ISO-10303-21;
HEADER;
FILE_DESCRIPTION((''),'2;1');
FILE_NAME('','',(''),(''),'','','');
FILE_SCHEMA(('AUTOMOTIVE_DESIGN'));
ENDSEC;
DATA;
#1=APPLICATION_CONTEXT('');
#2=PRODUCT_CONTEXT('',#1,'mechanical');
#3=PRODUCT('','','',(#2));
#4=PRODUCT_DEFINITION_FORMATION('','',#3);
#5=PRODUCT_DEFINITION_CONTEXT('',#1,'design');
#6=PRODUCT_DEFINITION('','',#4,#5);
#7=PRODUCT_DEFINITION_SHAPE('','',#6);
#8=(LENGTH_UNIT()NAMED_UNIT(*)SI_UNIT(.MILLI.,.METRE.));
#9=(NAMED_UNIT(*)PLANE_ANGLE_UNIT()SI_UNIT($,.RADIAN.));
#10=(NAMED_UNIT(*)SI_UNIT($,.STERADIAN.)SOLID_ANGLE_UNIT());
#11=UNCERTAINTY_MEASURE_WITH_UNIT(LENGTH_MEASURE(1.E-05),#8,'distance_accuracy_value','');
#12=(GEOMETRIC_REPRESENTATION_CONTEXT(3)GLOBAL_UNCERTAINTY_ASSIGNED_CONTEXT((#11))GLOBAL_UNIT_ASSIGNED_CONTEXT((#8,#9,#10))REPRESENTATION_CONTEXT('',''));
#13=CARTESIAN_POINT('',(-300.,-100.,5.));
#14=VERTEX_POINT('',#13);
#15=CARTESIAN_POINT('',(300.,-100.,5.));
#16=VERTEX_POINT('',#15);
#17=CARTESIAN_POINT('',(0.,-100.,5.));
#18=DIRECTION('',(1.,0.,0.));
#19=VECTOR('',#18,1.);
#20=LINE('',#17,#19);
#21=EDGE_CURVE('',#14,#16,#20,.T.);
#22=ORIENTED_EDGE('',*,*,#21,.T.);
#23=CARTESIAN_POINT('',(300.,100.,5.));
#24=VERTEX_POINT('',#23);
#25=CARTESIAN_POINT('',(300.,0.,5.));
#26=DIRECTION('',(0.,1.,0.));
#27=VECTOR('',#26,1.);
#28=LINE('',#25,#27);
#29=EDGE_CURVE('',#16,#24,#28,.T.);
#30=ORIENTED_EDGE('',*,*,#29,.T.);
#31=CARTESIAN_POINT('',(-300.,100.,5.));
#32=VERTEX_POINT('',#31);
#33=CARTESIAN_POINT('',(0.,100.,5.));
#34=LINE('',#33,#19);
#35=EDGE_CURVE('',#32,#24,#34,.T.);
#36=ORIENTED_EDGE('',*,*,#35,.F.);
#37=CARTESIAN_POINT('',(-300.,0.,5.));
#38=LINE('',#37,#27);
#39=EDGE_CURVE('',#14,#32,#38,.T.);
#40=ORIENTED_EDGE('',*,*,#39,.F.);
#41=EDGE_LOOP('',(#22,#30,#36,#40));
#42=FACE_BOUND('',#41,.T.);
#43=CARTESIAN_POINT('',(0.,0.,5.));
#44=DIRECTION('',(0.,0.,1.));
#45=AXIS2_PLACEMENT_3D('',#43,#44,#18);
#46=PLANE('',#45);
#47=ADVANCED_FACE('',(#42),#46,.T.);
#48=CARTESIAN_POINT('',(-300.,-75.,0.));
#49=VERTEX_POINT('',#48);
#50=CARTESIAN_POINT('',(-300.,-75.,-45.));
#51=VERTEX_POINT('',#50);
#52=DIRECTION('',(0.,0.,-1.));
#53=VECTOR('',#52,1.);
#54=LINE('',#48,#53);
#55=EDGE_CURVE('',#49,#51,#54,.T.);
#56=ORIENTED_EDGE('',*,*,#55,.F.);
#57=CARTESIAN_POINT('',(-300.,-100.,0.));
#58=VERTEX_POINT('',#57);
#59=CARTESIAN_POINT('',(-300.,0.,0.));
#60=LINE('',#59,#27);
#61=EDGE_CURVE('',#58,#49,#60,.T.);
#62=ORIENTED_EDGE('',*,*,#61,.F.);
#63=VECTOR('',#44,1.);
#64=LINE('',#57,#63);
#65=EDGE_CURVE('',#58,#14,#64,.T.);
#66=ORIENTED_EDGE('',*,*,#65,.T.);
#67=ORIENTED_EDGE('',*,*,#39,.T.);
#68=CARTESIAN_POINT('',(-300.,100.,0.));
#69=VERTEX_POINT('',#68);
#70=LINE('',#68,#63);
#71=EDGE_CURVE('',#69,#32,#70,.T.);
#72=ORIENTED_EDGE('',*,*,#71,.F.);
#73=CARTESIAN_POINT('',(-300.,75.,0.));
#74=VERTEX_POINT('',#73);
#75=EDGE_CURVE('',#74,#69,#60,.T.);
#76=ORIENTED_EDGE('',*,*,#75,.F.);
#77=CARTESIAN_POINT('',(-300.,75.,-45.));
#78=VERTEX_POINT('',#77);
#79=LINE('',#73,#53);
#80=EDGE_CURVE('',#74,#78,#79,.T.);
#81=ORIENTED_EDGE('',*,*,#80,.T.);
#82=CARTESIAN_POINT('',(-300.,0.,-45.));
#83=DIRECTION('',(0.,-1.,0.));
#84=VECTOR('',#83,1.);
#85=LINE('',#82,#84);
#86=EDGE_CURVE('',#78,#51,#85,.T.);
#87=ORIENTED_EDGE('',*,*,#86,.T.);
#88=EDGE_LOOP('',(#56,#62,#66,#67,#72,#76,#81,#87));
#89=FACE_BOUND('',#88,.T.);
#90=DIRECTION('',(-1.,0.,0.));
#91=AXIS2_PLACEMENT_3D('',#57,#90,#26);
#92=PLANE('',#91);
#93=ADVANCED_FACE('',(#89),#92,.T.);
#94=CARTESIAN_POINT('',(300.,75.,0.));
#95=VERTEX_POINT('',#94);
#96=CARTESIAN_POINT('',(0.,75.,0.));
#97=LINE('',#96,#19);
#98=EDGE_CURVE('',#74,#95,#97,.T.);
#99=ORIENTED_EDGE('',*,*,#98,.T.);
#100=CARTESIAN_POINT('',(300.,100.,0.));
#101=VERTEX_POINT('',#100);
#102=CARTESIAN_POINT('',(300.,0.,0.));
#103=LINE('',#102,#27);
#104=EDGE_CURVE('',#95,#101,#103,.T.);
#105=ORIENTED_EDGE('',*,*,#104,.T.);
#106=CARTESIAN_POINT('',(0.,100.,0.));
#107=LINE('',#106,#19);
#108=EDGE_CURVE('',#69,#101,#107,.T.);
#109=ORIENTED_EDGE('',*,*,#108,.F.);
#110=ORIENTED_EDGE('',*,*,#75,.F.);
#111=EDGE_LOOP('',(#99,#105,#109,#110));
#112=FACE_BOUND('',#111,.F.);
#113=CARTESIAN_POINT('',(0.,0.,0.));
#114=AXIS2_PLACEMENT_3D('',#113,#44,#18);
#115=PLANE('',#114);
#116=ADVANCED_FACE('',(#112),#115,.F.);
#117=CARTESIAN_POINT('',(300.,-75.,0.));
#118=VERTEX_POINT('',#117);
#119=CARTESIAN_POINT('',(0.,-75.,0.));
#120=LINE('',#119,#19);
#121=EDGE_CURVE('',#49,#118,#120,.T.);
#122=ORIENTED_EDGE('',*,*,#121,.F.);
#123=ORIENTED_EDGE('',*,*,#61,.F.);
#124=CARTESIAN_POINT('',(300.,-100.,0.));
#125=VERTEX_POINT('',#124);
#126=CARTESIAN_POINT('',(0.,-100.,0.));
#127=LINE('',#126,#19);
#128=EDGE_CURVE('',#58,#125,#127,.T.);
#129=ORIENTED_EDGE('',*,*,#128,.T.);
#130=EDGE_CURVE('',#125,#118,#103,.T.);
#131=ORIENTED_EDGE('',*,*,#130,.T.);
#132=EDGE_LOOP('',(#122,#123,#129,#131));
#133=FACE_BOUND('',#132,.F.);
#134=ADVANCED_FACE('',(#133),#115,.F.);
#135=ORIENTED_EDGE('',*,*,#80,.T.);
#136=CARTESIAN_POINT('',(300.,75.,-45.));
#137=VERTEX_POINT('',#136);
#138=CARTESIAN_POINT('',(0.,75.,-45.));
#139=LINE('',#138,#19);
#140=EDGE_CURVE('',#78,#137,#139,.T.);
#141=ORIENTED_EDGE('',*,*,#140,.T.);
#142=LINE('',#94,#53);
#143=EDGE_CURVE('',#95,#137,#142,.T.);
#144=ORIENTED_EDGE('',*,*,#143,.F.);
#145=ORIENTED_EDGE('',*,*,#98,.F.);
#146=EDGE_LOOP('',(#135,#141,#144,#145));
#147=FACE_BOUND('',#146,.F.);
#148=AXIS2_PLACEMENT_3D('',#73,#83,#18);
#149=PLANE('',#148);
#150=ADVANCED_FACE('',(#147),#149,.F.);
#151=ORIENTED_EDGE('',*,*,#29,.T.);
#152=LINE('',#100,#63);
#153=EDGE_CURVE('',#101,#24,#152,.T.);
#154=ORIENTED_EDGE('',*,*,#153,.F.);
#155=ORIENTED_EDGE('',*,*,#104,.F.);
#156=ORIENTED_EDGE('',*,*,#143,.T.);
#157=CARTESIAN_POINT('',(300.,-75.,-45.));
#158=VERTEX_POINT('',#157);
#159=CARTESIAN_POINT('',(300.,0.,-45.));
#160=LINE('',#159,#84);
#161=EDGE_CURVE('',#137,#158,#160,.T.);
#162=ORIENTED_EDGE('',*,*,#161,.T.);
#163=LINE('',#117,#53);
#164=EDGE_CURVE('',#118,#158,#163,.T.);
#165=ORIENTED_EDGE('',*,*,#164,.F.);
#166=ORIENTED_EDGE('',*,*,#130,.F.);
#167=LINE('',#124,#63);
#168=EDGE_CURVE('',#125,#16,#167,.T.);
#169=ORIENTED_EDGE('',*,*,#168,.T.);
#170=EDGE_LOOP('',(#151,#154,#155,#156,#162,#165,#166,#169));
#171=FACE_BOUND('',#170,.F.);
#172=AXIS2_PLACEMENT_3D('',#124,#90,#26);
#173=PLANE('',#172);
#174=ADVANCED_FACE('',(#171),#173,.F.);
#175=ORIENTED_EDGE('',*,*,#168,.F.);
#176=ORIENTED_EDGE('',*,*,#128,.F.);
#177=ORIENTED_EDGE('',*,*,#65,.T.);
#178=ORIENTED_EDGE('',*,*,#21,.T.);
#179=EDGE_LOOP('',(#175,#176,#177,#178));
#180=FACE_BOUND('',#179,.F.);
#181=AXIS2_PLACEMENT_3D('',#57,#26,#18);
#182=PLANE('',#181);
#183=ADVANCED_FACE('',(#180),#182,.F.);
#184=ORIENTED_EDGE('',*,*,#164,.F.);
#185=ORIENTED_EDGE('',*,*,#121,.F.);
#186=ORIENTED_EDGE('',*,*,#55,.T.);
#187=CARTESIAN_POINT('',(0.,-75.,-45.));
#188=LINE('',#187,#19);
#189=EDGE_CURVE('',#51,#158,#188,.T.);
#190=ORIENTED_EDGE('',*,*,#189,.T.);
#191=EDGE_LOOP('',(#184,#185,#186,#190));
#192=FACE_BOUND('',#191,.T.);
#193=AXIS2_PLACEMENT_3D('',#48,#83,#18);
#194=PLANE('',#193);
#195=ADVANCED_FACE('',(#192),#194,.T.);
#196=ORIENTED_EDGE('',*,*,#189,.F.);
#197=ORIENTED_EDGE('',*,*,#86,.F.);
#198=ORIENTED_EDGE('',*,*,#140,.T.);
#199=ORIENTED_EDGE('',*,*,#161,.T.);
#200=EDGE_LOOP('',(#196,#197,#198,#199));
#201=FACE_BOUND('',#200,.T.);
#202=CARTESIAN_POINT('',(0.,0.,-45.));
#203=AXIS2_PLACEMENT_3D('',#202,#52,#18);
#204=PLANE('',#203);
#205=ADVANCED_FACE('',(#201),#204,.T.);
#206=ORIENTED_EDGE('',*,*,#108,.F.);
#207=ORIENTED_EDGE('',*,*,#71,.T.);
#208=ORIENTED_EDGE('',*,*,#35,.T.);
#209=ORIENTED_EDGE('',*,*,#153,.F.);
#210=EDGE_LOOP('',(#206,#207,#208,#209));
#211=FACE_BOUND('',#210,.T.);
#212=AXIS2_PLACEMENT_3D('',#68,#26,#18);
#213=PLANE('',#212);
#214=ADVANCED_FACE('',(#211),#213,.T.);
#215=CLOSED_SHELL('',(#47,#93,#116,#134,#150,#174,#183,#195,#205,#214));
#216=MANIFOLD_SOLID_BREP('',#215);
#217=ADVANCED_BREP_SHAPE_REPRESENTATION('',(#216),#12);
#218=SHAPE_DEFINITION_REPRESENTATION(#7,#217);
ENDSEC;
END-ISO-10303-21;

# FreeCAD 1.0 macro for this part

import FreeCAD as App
import Part
import Sketcher
from FreeCAD import Vector

doc = App.newDocument("Part")
params = doc.addObject("Spreadsheet::Sheet", "Params")
for row, (alias, value) in enumerate([
    ("sketch1_width", "600 mm"),
    ("sketch1_height", "200 mm"),
    ("pad1_length", "5 mm"),
    ("sketch2_width", "600 mm"),
    ("sketch2_height", "150 mm"),
    ("pad2_length", "45 mm"),
], start=1):
    params.set(f"A{row}", alias)
    params.set(f"B{row}", "=" + value)
    params.setAlias(f"B{row}", alias)

body = doc.addObject("PartDesign::Body", "Body")

# Sketch on XY plane
sketch1 = body.newObject("Sketcher::SketchObject", "Sketch")
sketch1.AttachmentSupport = (doc.getObject("XY_Plane"), [""])
sketch1.MapMode = "FlatFace"
sketch1.addGeometry([
    Part.LineSegment(Vector(-300, 100, 0), Vector(-300, -100, 0)),
    Part.LineSegment(Vector(-300, -100, 0), Vector(300, -100, 0)),
    Part.LineSegment(Vector(300, -100, 0), Vector(300, 100, 0)),
    Part.LineSegment(Vector(300, 100, 0), Vector(-300, 100, 0)),
], False)
sketch1.addConstraint([
    Sketcher.Constraint("Coincident", 0, 2, 1, 1),
    Sketcher.Constraint("Coincident", 1, 2, 2, 1),
    Sketcher.Constraint("Coincident", 2, 2, 3, 1),
    Sketcher.Constraint("Coincident", 3, 2, 0, 1),
    Sketcher.Constraint("Vertical", 0),
    Sketcher.Constraint("Horizontal", 1),
    Sketcher.Constraint("Vertical", 2),
    Sketcher.Constraint("Horizontal", 3),
    Sketcher.Constraint("Symmetric", 0, 2, 2, 2, -1, 1),
    Sketcher.Constraint("DistanceX", 1, 1, 1, 2, 600.0),
    Sketcher.Constraint("DistanceY", 0, 2, 0, 1, 200.0),
])
sketch1.setExpression("Constraints[9]", "Params.sketch1_width")
sketch1.setExpression("Constraints[10]", "Params.sketch1_height")
pad1 = body.newObject("PartDesign::Pad", "Pad")
pad1.Profile = sketch1
pad1.setExpression("Length", "Params.pad1_length")

# Sketch on XY plane
sketch2 = body.newObject("Sketcher::SketchObject", "Sketch001")
sketch2.AttachmentSupport = (doc.getObject("XY_Plane"), [""])
sketch2.MapMode = "FlatFace"
sketch2.addGeometry([
    Part.LineSegment(Vector(-300, -75, 0), Vector(-300, 75, 0)),
    Part.LineSegment(Vector(-300, 75, 0), Vector(300, 75, 0)),
    Part.LineSegment(Vector(300, 75, 0), Vector(300, -75, 0)),
    Part.LineSegment(Vector(300, -75, 0), Vector(-300, -75, 0)),
], False)
sketch2.addConstraint([
    Sketcher.Constraint("Coincident", 0, 2, 1, 1),
    Sketcher.Constraint("Coincident", 1, 2, 2, 1),
    Sketcher.Constraint("Coincident", 2, 2, 3, 1),
    Sketcher.Constraint("Coincident", 3, 2, 0, 1),
    Sketcher.Constraint("Vertical", 0),
    Sketcher.Constraint("Horizontal", 1),
    Sketcher.Constraint("Vertical", 2),
    Sketcher.Constraint("Horizontal", 3),
    Sketcher.Constraint("Symmetric", 0, 2, 2, 2, -1, 1),
    Sketcher.Constraint("DistanceX", 1, 1, 1, 2, 600.0),
    Sketcher.Constraint("DistanceY", 0, 1, 0, 2, 150.0),
])
sketch2.setExpression("Constraints[9]", "Params.sketch2_width")
sketch2.setExpression("Constraints[10]", "Params.sketch2_height")
pad2 = body.newObject("PartDesign::Pad", "Pad001")
pad2.Profile = sketch2
pad2.setExpression("Length", "Params.pad2_length")
pad2.Reversed = True

doc.recompute()
